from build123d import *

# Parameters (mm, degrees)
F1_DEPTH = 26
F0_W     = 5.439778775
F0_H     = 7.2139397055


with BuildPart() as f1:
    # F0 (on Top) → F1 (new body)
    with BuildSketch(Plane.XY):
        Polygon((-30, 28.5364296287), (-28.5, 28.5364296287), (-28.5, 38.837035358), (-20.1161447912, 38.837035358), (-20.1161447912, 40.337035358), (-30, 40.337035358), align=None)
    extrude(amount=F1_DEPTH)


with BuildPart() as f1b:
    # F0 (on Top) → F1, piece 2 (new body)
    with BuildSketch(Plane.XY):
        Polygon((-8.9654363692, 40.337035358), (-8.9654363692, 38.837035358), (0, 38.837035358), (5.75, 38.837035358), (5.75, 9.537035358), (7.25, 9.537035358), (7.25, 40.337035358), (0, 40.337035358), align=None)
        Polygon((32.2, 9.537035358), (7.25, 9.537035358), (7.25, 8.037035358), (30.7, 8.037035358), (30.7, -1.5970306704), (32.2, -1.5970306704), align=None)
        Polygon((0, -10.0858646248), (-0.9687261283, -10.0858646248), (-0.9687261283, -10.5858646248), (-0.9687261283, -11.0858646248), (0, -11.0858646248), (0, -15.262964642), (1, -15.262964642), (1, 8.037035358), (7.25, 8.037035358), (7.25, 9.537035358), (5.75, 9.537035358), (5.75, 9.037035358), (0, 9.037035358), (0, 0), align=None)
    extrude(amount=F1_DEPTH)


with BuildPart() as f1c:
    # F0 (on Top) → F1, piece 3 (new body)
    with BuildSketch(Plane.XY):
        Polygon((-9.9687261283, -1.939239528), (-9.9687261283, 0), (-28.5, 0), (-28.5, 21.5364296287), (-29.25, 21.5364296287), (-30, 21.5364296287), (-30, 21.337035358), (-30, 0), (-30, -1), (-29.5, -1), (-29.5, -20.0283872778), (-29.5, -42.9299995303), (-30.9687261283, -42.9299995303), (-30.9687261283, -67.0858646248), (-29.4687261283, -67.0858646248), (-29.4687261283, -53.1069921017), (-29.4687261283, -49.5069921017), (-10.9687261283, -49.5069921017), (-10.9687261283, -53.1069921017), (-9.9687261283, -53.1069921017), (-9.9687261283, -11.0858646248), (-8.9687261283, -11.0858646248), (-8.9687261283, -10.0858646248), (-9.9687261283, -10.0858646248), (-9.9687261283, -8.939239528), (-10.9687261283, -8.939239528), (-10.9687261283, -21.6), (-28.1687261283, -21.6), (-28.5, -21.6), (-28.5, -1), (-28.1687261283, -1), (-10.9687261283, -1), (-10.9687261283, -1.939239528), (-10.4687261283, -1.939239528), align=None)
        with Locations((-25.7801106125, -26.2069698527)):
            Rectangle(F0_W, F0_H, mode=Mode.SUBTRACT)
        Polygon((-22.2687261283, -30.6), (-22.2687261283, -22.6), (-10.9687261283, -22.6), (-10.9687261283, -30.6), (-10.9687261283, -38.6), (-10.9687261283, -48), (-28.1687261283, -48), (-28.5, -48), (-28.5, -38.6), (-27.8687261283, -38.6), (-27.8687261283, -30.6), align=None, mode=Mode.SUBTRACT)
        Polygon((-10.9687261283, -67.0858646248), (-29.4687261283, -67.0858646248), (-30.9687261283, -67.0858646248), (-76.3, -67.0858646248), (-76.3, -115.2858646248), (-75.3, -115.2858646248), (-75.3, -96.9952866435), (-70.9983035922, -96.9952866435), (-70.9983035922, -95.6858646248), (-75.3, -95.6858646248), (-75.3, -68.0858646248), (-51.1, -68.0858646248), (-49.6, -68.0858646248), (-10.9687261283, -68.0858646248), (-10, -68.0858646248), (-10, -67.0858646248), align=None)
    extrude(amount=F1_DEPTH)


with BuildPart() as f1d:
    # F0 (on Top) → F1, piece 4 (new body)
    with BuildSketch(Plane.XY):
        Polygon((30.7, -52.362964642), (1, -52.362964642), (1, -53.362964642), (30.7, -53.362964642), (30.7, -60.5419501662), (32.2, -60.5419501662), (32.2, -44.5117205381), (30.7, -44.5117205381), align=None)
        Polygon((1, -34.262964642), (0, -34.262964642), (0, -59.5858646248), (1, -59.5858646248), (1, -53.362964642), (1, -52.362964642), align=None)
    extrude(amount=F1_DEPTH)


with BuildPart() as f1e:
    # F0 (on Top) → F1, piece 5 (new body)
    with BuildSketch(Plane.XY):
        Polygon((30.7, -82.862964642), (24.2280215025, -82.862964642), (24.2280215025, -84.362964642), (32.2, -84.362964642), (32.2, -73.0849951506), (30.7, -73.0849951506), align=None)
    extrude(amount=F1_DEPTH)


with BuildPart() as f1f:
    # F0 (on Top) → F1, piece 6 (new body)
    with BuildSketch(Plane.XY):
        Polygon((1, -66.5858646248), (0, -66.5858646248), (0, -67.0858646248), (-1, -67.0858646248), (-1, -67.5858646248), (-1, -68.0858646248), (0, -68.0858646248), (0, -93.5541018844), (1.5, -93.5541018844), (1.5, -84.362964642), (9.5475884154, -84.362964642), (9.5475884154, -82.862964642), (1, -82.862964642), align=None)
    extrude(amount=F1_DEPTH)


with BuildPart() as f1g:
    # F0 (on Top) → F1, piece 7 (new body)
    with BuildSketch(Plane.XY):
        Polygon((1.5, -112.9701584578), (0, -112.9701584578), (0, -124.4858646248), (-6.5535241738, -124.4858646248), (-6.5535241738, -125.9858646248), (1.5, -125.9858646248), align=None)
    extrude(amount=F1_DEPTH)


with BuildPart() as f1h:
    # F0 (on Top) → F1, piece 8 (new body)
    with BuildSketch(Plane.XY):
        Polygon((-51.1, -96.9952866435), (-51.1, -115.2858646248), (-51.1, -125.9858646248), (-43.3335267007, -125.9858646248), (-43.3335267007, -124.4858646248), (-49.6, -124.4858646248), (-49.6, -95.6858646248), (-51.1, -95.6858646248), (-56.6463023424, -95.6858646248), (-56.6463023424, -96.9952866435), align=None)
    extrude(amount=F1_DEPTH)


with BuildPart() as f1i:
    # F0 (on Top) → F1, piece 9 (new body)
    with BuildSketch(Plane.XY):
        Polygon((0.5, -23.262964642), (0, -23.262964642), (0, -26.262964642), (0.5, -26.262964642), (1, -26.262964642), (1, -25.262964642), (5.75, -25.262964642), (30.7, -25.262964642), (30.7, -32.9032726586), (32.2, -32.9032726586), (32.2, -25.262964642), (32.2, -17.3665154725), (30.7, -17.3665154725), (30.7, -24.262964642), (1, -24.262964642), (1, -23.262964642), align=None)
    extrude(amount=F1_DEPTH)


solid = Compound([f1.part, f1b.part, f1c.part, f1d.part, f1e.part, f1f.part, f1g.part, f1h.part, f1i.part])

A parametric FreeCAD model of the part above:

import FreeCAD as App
import Part
import Sketcher
Q = App.Units.Quantity

doc = App.newDocument("Part")
body = doc.addObject("PartDesign::Body", "Body")

sketch1 = body.newObject("Sketcher::SketchObject", "Sketch")
sketch1.AttachmentSupport = (doc.getObject("XY_Plane"), [""])
sketch1.MapMode = "FlatFace"
sketch1.addGeometry(Part.LineSegment(App.Vector(-30, 28.5, 0), App.Vector(-28.5, 28.5, 0)), False)
sketch1.addGeometry(Part.LineSegment(App.Vector(-28.5, 28.5, 0), App.Vector(-28.5, 38.8, 0)), False)
sketch1.addGeometry(Part.LineSegment(App.Vector(-28.5, 38.8, 0), App.Vector(-20.1, 38.8, 0)), False)
sketch1.addGeometry(Part.LineSegment(App.Vector(-20.1, 38.8, 0), App.Vector(-20.1, 40.3, 0)), False)
sketch1.addGeometry(Part.LineSegment(App.Vector(-20.1, 40.3, 0), App.Vector(-30, 40.3, 0)), False)
sketch1.addGeometry(Part.LineSegment(App.Vector(-30, 40.3, 0), App.Vector(-30, 28.5, 0)), False)
sketch1.addConstraint(Sketcher.Constraint("Coincident", 0, 2, 1, 1))
sketch1.addConstraint(Sketcher.Constraint("Coincident", 1, 2, 2, 1))
sketch1.addConstraint(Sketcher.Constraint("Coincident", 2, 2, 3, 1))
sketch1.addConstraint(Sketcher.Constraint("Coincident", 3, 2, 4, 1))
sketch1.addConstraint(Sketcher.Constraint("Coincident", 4, 2, 5, 1))
sketch1.addConstraint(Sketcher.Constraint("Coincident", 5, 2, 0, 1))
sketch1.addConstraint(Sketcher.Constraint("Horizontal", 0))
sketch1.addConstraint(Sketcher.Constraint("Vertical", 1))
sketch1.addConstraint(Sketcher.Constraint("Horizontal", 2))
sketch1.addConstraint(Sketcher.Constraint("Vertical", 3))
sketch1.addConstraint(Sketcher.Constraint("Horizontal", 4))
sketch1.addConstraint(Sketcher.Constraint("Vertical", 5))
sketch1.addConstraint(Sketcher.Constraint("Equal", 0, 3))
sketch1.addConstraint(Sketcher.Constraint("DistanceX", 0, 1, 0, 2, Q("1.5 mm")))
sketch1.addConstraint(Sketcher.Constraint("DistanceX", 4, 2, -1, 1, Q("30 mm")))
sketch1.addConstraint(Sketcher.Constraint("DistanceX", 2, 1, 2, 2, Q("8.383855 mm")))
sketch1.addConstraint(Sketcher.Constraint("DistanceY", 1, 1, 1, 2, Q("10.300606 mm")))
sketch1.addConstraint(Sketcher.Constraint("DistanceY", -1, 1, 0, 2, Q("28.53643 mm")))
pad1 = body.newObject("PartDesign::Pad", "Pad")
pad1.Profile = sketch1
pad1.Length = 26
body2 = doc.addObject("PartDesign::Body", "Body001")

sketch2 = body2.newObject("Sketcher::SketchObject", "Sketch001")
sketch2.AttachmentSupport = (doc.getObject("XY_Plane001"), [""])
sketch2.MapMode = "FlatFace"
sketch2.addGeometry(Part.LineSegment(App.Vector(-9, 40.3, 0), App.Vector(-9, 38.8, 0)), False)
sketch2.addGeometry(Part.LineSegment(App.Vector(-9, 38.8, 0), App.Vector(5.8, 38.8, 0)), False)
sketch2.addGeometry(Part.LineSegment(App.Vector(5.8, 38.8, 0), App.Vector(5.8, 9, 0)), False)
sketch2.addGeometry(Part.LineSegment(App.Vector(5.8, 9, 0), App.Vector(0, 9, 0)), False)
sketch2.addGeometry(Part.LineSegment(App.Vector(0, 9, 0), App.Vector(0, -10.1, 0)), False)
sketch2.addGeometry(Part.LineSegment(App.Vector(0, -10.1, 0), App.Vector(-1, -10.1, 0)), False)
sketch2.addGeometry(Part.LineSegment(App.Vector(-1, -10.1, 0), App.Vector(-1, -11.1, 0)), False)
sketch2.addGeometry(Part.LineSegment(App.Vector(-1, -11.1, 0), App.Vector(0, -11.1, 0)), False)
sketch2.addGeometry(Part.LineSegment(App.Vector(0, -11.1, 0), App.Vector(0, -15.3, 0)), False)
sketch2.addGeometry(Part.LineSegment(App.Vector(0, -15.3, 0), App.Vector(1, -15.3, 0)), False)
sketch2.addGeometry(Part.LineSegment(App.Vector(1, -15.3, 0), App.Vector(1, 8, 0)), False)
sketch2.addGeometry(Part.LineSegment(App.Vector(1, 8, 0), App.Vector(30.7, 8, 0)), False)
sketch2.addGeometry(Part.LineSegment(App.Vector(30.7, 8, 0), App.Vector(30.7, -1.6, 0)), False)
sketch2.addGeometry(Part.LineSegment(App.Vector(30.7, -1.6, 0), App.Vector(32.2, -1.6, 0)), False)
sketch2.addGeometry(Part.LineSegment(App.Vector(32.2, -1.6, 0), App.Vector(32.2, 9.5, 0)), False)
sketch2.addGeometry(Part.LineSegment(App.Vector(32.2, 9.5, 0), App.Vector(7.2, 9.5, 0)), False)
sketch2.addGeometry(Part.LineSegment(App.Vector(7.2, 9.5, 0), App.Vector(7.2, 40.3, 0)), False)
sketch2.addGeometry(Part.LineSegment(App.Vector(7.2, 40.3, 0), App.Vector(-9, 40.3, 0)), False)
sketch2.addConstraint(Sketcher.Constraint("Coincident", 0, 2, 1, 1))
sketch2.addConstraint(Sketcher.Constraint("Coincident", 1, 2, 2, 1))
sketch2.addConstraint(Sketcher.Constraint("Coincident", 2, 2, 3, 1))
sketch2.addConstraint(Sketcher.Constraint("Coincident", 3, 2, 4, 1))
sketch2.addConstraint(Sketcher.Constraint("Coincident", 4, 2, 5, 1))
sketch2.addConstraint(Sketcher.Constraint("Coincident", 5, 2, 6, 1))
sketch2.addConstraint(Sketcher.Constraint("Coincident", 6, 2, 7, 1))
sketch2.addConstraint(Sketcher.Constraint("Coincident", 7, 2, 8, 1))
sketch2.addConstraint(Sketcher.Constraint("Coincident", 8, 2, 9, 1))
sketch2.addConstraint(Sketcher.Constraint("Coincident", 9, 2, 10, 1))
sketch2.addConstraint(Sketcher.Constraint("Coincident", 10, 2, 11, 1))
sketch2.addConstraint(Sketcher.Constraint("Coincident", 11, 2, 12, 1))
sketch2.addConstraint(Sketcher.Constraint("Coincident", 12, 2, 13, 1))
sketch2.addConstraint(Sketcher.Constraint("Coincident", 13, 2, 14, 1))
sketch2.addConstraint(Sketcher.Constraint("Coincident", 14, 2, 15, 1))
sketch2.addConstraint(Sketcher.Constraint("Coincident", 15, 2, 16, 1))
sketch2.addConstraint(Sketcher.Constraint("Coincident", 16, 2, 17, 1))
sketch2.addConstraint(Sketcher.Constraint("Coincident", 17, 2, 0, 1))
sketch2.addConstraint(Sketcher.Constraint("Vertical", 0))
sketch2.addConstraint(Sketcher.Constraint("Horizontal", 1))
sketch2.addConstraint(Sketcher.Constraint("Vertical", 2))
sketch2.addConstraint(Sketcher.Constraint("Horizontal", 3))
sketch2.addConstraint(Sketcher.Constraint("Vertical", 4))
sketch2.addConstraint(Sketcher.Constraint("Horizontal", 5))
sketch2.addConstraint(Sketcher.Constraint("Vertical", 6))
sketch2.addConstraint(Sketcher.Constraint("Horizontal", 7))
sketch2.addConstraint(Sketcher.Constraint("Vertical", 8))
sketch2.addConstraint(Sketcher.Constraint("Horizontal", 9))
sketch2.addConstraint(Sketcher.Constraint("Vertical", 10))
sketch2.addConstraint(Sketcher.Constraint("Horizontal", 11))
sketch2.addConstraint(Sketcher.Constraint("Vertical", 12))
sketch2.addConstraint(Sketcher.Constraint("Horizontal", 13))
sketch2.addConstraint(Sketcher.Constraint("Vertical", 14))
sketch2.addConstraint(Sketcher.Constraint("Horizontal", 15))
sketch2.addConstraint(Sketcher.Constraint("Vertical", 16))
sketch2.addConstraint(Sketcher.Constraint("Horizontal", 17))
sketch2.addConstraint(Sketcher.Constraint("PointOnObject", 3, 2, -2))
sketch2.addConstraint(Sketcher.Constraint("PointOnObject", 7, 2, -2))
sketch2.addConstraint(Sketcher.Constraint("Equal", 13, 0))
sketch2.addConstraint(Sketcher.Constraint("Equal", 9, 6))
sketch2.addConstraint(Sketcher.Constraint("DistanceX", 9, 1, 9, 2, Q("1 mm")))
sketch2.addConstraint(Sketcher.Constraint("DistanceX", 11, 1, 11, 2, Q("29.7 mm")))
sketch2.addConstraint(Sketcher.Constraint("DistanceX", 13, 1, 13, 2, Q("1.5 mm")))
sketch2.addConstraint(Sketcher.Constraint("DistanceY", 2, 2, 2, 1, Q("29.8 mm")))
sketch2.addConstraint(Sketcher.Constraint("DistanceY", 10, 1, 10, 2, Q("23.3 mm")))
sketch2.addConstraint(Sketcher.Constraint("DistanceY", 16, 1, 16, 2, Q("30.8 mm")))
sketch2.addConstraint(Sketcher.Constraint("DistanceY", 10, 2, 3, 2, Q("1 mm")))
sketch2.addConstraint(Sketcher.Constraint("DistanceX", 3, 2, 3, 1, Q("5.75 mm")))
sketch2.addConstraint(Sketcher.Constraint("DistanceX", 15, 2, 15, 1, Q("24.95 mm")))
sketch2.addConstraint(Sketcher.Constraint("DistanceY", 4, 2, 4, 1, Q("19.1229 mm")))
sketch2.addConstraint(Sketcher.Constraint("DistanceX", 1, 1, 1, 2, Q("14.715436 mm")))
sketch2.addConstraint(Sketcher.Constraint("DistanceX", 5, 2, 5, 1, Q("0.968726 mm")))
sketch2.addConstraint(Sketcher.Constraint("DistanceY", 12, 2, 12, 1, Q("9.634066 mm")))
sketch2.addConstraint(Sketcher.Constraint("DistanceY", 12, 2, -1, 1, Q("1.597031 mm")))
pad2 = body2.newObject("PartDesign::Pad", "Pad001")
pad2.Profile = sketch2
pad2.Length = 26
body3 = doc.addObject("PartDesign::Body", "Body002")

sketch3 = body3.newObject("Sketcher::SketchObject", "Sketch002")
sketch3.AttachmentSupport = (doc.getObject("XY_Plane002"), [""])
sketch3.MapMode = "FlatFace"
sketch3.addGeometry(Part.LineSegment(App.Vector(-10, -1.9, 0), App.Vector(-10, 0, 0)), False)
sketch3.addGeometry(Part.LineSegment(App.Vector(-10, 0, 0), App.Vector(-28.5, 0, 0)), False)
sketch3.addGeometry(Part.LineSegment(App.Vector(-28.5, 0, 0), App.Vector(-28.5, 21.5, 0)), False)
sketch3.addGeometry(Part.LineSegment(App.Vector(-28.5, 21.5, 0), App.Vector(-30, 21.5, 0)), False)
sketch3.addGeometry(Part.LineSegment(App.Vector(-30, 21.5, 0), App.Vector(-30, -1, 0)), False)
sketch3.addGeometry(Part.LineSegment(App.Vector(-30, -1, 0), App.Vector(-29.5, -1, 0)), False)
sketch3.addGeometry(Part.LineSegment(App.Vector(-29.5, -1, 0), App.Vector(-29.5, -42.9, 0)), False)
sketch3.addGeometry(Part.LineSegment(App.Vector(-29.5, -42.9, 0), App.Vector(-31, -42.9, 0)), False)
sketch3.addGeometry(Part.LineSegment(App.Vector(-31, -42.9, 0), App.Vector(-31, -67.1, 0)), False)
sketch3.addGeometry(Part.LineSegment(App.Vector(-31, -67.1, 0), App.Vector(-76.3, -67.1, 0)), False)
sketch3.addGeometry(Part.LineSegment(App.Vector(-76.3, -67.1, 0), App.Vector(-76.3, -115.3, 0)), False)
sketch3.addGeometry(Part.LineSegment(App.Vector(-76.3, -115.3, 0), App.Vector(-75.3, -115.3, 0)), False)
sketch3.addGeometry(Part.LineSegment(App.Vector(-75.3, -115.3, 0), App.Vector(-75.3, -97, 0)), False)
sketch3.addGeometry(Part.LineSegment(App.Vector(-75.3, -97, 0), App.Vector(-71, -97, 0)), False)
sketch3.addGeometry(Part.LineSegment(App.Vector(-71, -97, 0), App.Vector(-71, -95.7, 0)), False)
sketch3.addGeometry(Part.LineSegment(App.Vector(-71, -95.7, 0), App.Vector(-75.3, -95.7, 0)), False)
sketch3.addGeometry(Part.LineSegment(App.Vector(-75.3, -95.7, 0), App.Vector(-75.3, -68.1, 0)), False)
sketch3.addGeometry(Part.LineSegment(App.Vector(-75.3, -68.1, 0), App.Vector(-10, -68.1, 0)), False)
sketch3.addGeometry(Part.LineSegment(App.Vector(-10, -68.1, 0), App.Vector(-10, -67.1, 0)), False)
sketch3.addGeometry(Part.LineSegment(App.Vector(-10, -67.1, 0), App.Vector(-29.5, -67.1, 0)), False)
sketch3.addGeometry(Part.LineSegment(App.Vector(-29.5, -67.1, 0), App.Vector(-29.5, -49.5, 0)), False)
sketch3.addGeometry(Part.LineSegment(App.Vector(-29.5, -49.5, 0), App.Vector(-11, -49.5, 0)), False)
sketch3.addGeometry(Part.LineSegment(App.Vector(-11, -49.5, 0), App.Vector(-11, -53.1, 0)), False)
sketch3.addGeometry(Part.LineSegment(App.Vector(-11, -53.1, 0), App.Vector(-10, -53.1, 0)), False)
sketch3.addGeometry(Part.LineSegment(App.Vector(-10, -53.1, 0), App.Vector(-10, -11.1, 0)), False)
sketch3.addGeometry(Part.LineSegment(App.Vector(-10, -11.1, 0), App.Vector(-9, -11.1, 0)), False)
sketch3.addGeometry(Part.LineSegment(App.Vector(-9, -11.1, 0), App.Vector(-9, -10.1, 0)), False)
sketch3.addGeometry(Part.LineSegment(App.Vector(-9, -10.1, 0), App.Vector(-10, -10.1, 0)), False)
sketch3.addGeometry(Part.LineSegment(App.Vector(-10, -10.1, 0), App.Vector(-10, -8.9, 0)), False)
sketch3.addGeometry(Part.LineSegment(App.Vector(-10, -8.9, 0), App.Vector(-11, -8.9, 0)), False)
sketch3.addGeometry(Part.LineSegment(App.Vector(-11, -8.9, 0), App.Vector(-11, -21.6, 0)), False)
sketch3.addGeometry(Part.LineSegment(App.Vector(-11, -21.6, 0), App.Vector(-28.5, -21.6, 0)), False)
sketch3.addGeometry(Part.LineSegment(App.Vector(-28.5, -21.6, 0), App.Vector(-28.5, -1, 0)), False)
sketch3.addGeometry(Part.LineSegment(App.Vector(-28.5, -1, 0), App.Vector(-11, -1, 0)), False)
sketch3.addGeometry(Part.LineSegment(App.Vector(-11, -1, 0), App.Vector(-11, -1.9, 0)), False)
sketch3.addGeometry(Part.LineSegment(App.Vector(-11, -1.9, 0), App.Vector(-10, -1.9, 0)), False)
sketch3.addGeometry(Part.LineSegment(App.Vector(-27.9, -30.6, 0), App.Vector(-22.3, -30.6, 0)), False)
sketch3.addGeometry(Part.LineSegment(App.Vector(-22.3, -30.6, 0), App.Vector(-22.3, -22.6, 0)), False)
sketch3.addGeometry(Part.LineSegment(App.Vector(-22.3, -22.6, 0), App.Vector(-11, -22.6, 0)), False)
sketch3.addGeometry(Part.LineSegment(App.Vector(-11, -22.6, 0), App.Vector(-11, -48, 0)), False)
sketch3.addGeometry(Part.LineSegment(App.Vector(-11, -48, 0), App.Vector(-28.5, -48, 0)), False)
sketch3.addGeometry(Part.LineSegment(App.Vector(-28.5, -48, 0), App.Vector(-28.5, -38.6, 0)), False)
sketch3.addGeometry(Part.LineSegment(App.Vector(-28.5, -38.6, 0), App.Vector(-27.9, -38.6, 0)), False)
sketch3.addGeometry(Part.LineSegment(App.Vector(-27.9, -38.6, 0), App.Vector(-27.9, -30.6, 0)), False)
sketch3.addGeometry(Part.LineSegment(App.Vector(-23.1, -29.8, 0), App.Vector(-28.5, -29.8, 0)), False)
sketch3.addGeometry(Part.LineSegment(App.Vector(-28.5, -29.8, 0), App.Vector(-28.5, -22.6, 0)), False)
sketch3.addGeometry(Part.LineSegment(App.Vector(-28.5, -22.6, 0), App.Vector(-23.1, -22.6, 0)), False)
sketch3.addGeometry(Part.LineSegment(App.Vector(-23.1, -22.6, 0), App.Vector(-23.1, -29.8, 0)), False)
sketch3.addConstraint(Sketcher.Constraint("Coincident", 0, 2, 1, 1))
sketch3.addConstraint(Sketcher.Constraint("Coincident", 1, 2, 2, 1))
sketch3.addConstraint(Sketcher.Constraint("Coincident", 2, 2, 3, 1))
sketch3.addConstraint(Sketcher.Constraint("Coincident", 3, 2, 4, 1))
sketch3.addConstraint(Sketcher.Constraint("Coincident", 4, 2, 5, 1))
sketch3.addConstraint(Sketcher.Constraint("Coincident", 5, 2, 6, 1))
sketch3.addConstraint(Sketcher.Constraint("Coincident", 6, 2, 7, 1))
sketch3.addConstraint(Sketcher.Constraint("Coincident", 7, 2, 8, 1))
sketch3.addConstraint(Sketcher.Constraint("Coincident", 8, 2, 9, 1))
sketch3.addConstraint(Sketcher.Constraint("Coincident", 9, 2, 10, 1))
sketch3.addConstraint(Sketcher.Constraint("Coincident", 10, 2, 11, 1))
sketch3.addConstraint(Sketcher.Constraint("Coincident", 11, 2, 12, 1))
sketch3.addConstraint(Sketcher.Constraint("Coincident", 12, 2, 13, 1))
sketch3.addConstraint(Sketcher.Constraint("Coincident", 13, 2, 14, 1))
sketch3.addConstraint(Sketcher.Constraint("Coincident", 14, 2, 15, 1))
sketch3.addConstraint(Sketcher.Constraint("Coincident", 15, 2, 16, 1))
sketch3.addConstraint(Sketcher.Constraint("Coincident", 16, 2, 17, 1))
sketch3.addConstraint(Sketcher.Constraint("Coincident", 17, 2, 18, 1))
sketch3.addConstraint(Sketcher.Constraint("Coincident", 18, 2, 19, 1))
sketch3.addConstraint(Sketcher.Constraint("Coincident", 19, 2, 20, 1))
sketch3.addConstraint(Sketcher.Constraint("Coincident", 20, 2, 21, 1))
sketch3.addConstraint(Sketcher.Constraint("Coincident", 21, 2, 22, 1))
sketch3.addConstraint(Sketcher.Constraint("Coincident", 22, 2, 23, 1))
sketch3.addConstraint(Sketcher.Constraint("Coincident", 23, 2, 24, 1))
sketch3.addConstraint(Sketcher.Constraint("Coincident", 24, 2, 25, 1))
sketch3.addConstraint(Sketcher.Constraint("Coincident", 25, 2, 26, 1))
sketch3.addConstraint(Sketcher.Constraint("Coincident", 26, 2, 27, 1))
sketch3.addConstraint(Sketcher.Constraint("Coincident", 27, 2, 28, 1))
sketch3.addConstraint(Sketcher.Constraint("Coincident", 28, 2, 29, 1))
sketch3.addConstraint(Sketcher.Constraint("Coincident", 29, 2, 30, 1))
sketch3.addConstraint(Sketcher.Constraint("Coincident", 30, 2, 31, 1))
sketch3.addConstraint(Sketcher.Constraint("Coincident", 31, 2, 32, 1))
sketch3.addConstraint(Sketcher.Constraint("Coincident", 32, 2, 33, 1))
sketch3.addConstraint(Sketcher.Constraint("Coincident", 33, 2, 34, 1))
sketch3.addConstraint(Sketcher.Constraint("Coincident", 34, 2, 35, 1))
sketch3.addConstraint(Sketcher.Constraint("Coincident", 35, 2, 0, 1))
sketch3.addConstraint(Sketcher.Constraint("Coincident", 36, 2, 37, 1))
sketch3.addConstraint(Sketcher.Constraint("Coincident", 37, 2, 38, 1))
sketch3.addConstraint(Sketcher.Constraint("Coincident", 38, 2, 39, 1))
sketch3.addConstraint(Sketcher.Constraint("Coincident", 39, 2, 40, 1))
sketch3.addConstraint(Sketcher.Constraint("Coincident", 40, 2, 41, 1))
sketch3.addConstraint(Sketcher.Constraint("Coincident", 41, 2, 42, 1))
sketch3.addConstraint(Sketcher.Constraint("Coincident", 42, 2, 43, 1))
sketch3.addConstraint(Sketcher.Constraint("Coincident", 43, 2, 36, 1))
sketch3.addConstraint(Sketcher.Constraint("Coincident", 44, 2, 45, 1))
sketch3.addConstraint(Sketcher.Constraint("Coincident", 45, 2, 46, 1))
sketch3.addConstraint(Sketcher.Constraint("Coincident", 46, 2, 47, 1))
sketch3.addConstraint(Sketcher.Constraint("Coincident", 47, 2, 44, 1))
sketch3.addConstraint(Sketcher.Constraint("Vertical", 0))
sketch3.addConstraint(Sketcher.Constraint("Horizontal", 1))
sketch3.addConstraint(Sketcher.Constraint("Vertical", 2))
sketch3.addConstraint(Sketcher.Constraint("Horizontal", 3))
sketch3.addConstraint(Sketcher.Constraint("Vertical", 4))
sketch3.addConstraint(Sketcher.Constraint("Horizontal", 5))
sketch3.addConstraint(Sketcher.Constraint("Vertical", 6))
sketch3.addConstraint(Sketcher.Constraint("Horizontal", 7))
sketch3.addConstraint(Sketcher.Constraint("Vertical", 8))
sketch3.addConstraint(Sketcher.Constraint("Horizontal", 9))
sketch3.addConstraint(Sketcher.Constraint("Vertical", 10))
sketch3.addConstraint(Sketcher.Constraint("Horizontal", 11))
sketch3.addConstraint(Sketcher.Constraint("Vertical", 12))
sketch3.addConstraint(Sketcher.Constraint("Horizontal", 13))
sketch3.addConstraint(Sketcher.Constraint("Vertical", 14))
sketch3.addConstraint(Sketcher.Constraint("Horizontal", 15))
sketch3.addConstraint(Sketcher.Constraint("Vertical", 16))
sketch3.addConstraint(Sketcher.Constraint("Horizontal", 17))
sketch3.addConstraint(Sketcher.Constraint("Vertical", 18))
sketch3.addConstraint(Sketcher.Constraint("Horizontal", 19))
sketch3.addConstraint(Sketcher.Constraint("Vertical", 20))
sketch3.addConstraint(Sketcher.Constraint("Horizontal", 21))
sketch3.addConstraint(Sketcher.Constraint("Vertical", 22))
sketch3.addConstraint(Sketcher.Constraint("Horizontal", 23))
sketch3.addConstraint(Sketcher.Constraint("Vertical", 24))
sketch3.addConstraint(Sketcher.Constraint("Horizontal", 25))
sketch3.addConstraint(Sketcher.Constraint("Vertical", 26))
sketch3.addConstraint(Sketcher.Constraint("Horizontal", 27))
sketch3.addConstraint(Sketcher.Constraint("Vertical", 28))
sketch3.addConstraint(Sketcher.Constraint("Horizontal", 29))
sketch3.addConstraint(Sketcher.Constraint("Vertical", 30))
sketch3.addConstraint(Sketcher.Constraint("Horizontal", 31))
sketch3.addConstraint(Sketcher.Constraint("Vertical", 32))
sketch3.addConstraint(Sketcher.Constraint("Horizontal", 33))
sketch3.addConstraint(Sketcher.Constraint("Vertical", 34))
sketch3.addConstraint(Sketcher.Constraint("Horizontal", 35))
sketch3.addConstraint(Sketcher.Constraint("Horizontal", 36))
sketch3.addConstraint(Sketcher.Constraint("Vertical", 37))
sketch3.addConstraint(Sketcher.Constraint("Horizontal", 38))
sketch3.addConstraint(Sketcher.Constraint("Vertical", 39))
sketch3.addConstraint(Sketcher.Constraint("Horizontal", 40))
sketch3.addConstraint(Sketcher.Constraint("Vertical", 41))
sketch3.addConstraint(Sketcher.Constraint("Horizontal", 42))
sketch3.addConstraint(Sketcher.Constraint("Vertical", 43))
sketch3.addConstraint(Sketcher.Constraint("Horizontal", 44))
sketch3.addConstraint(Sketcher.Constraint("Vertical", 45))
sketch3.addConstraint(Sketcher.Constraint("Horizontal", 46))
sketch3.addConstraint(Sketcher.Constraint("Vertical", 47))
sketch3.addConstraint(Sketcher.Constraint("PointOnObject", 0, 2, -1))
sketch3.addConstraint(Sketcher.Constraint("Horizontal", 9, 2, 18, 2))
sketch3.addConstraint(Sketcher.Constraint("Horizontal", 5, 2, 32, 2))
sketch3.addConstraint(Sketcher.Constraint("Horizontal", 38, 2, 45, 2))
sketch3.addConstraint(Sketcher.Constraint("Vertical", 12, 2, 15, 2))
sketch3.addConstraint(Sketcher.Constraint("Vertical", 0, 2, 23, 2))
sketch3.addConstraint(Sketcher.Constraint("Vertical", 24, 2, 27, 2))
sketch3.addConstraint(Sketcher.Constraint("Vertical", 22, 2, 29, 2))
sketch3.addConstraint(Sketcher.Constraint("Vertical", 2, 2, 31, 2))
sketch3.addConstraint(Sketcher.Constraint("Vertical", 30, 2, 33, 2))
sketch3.addConstraint(Sketcher.Constraint("Vertical", 34, 2, 38, 2))
sketch3.addConstraint(Sketcher.Constraint("Vertical", 32, 2, 40, 2))
sketch3.addConstraint(Sketcher.Constraint("Vertical", 41, 2, 44, 2))
sketch3.addConstraint(Sketcher.Constraint("Equal", 11, 23))
sketch3.addConstraint(Sketcher.Constraint("Equal", 23, 25))
sketch3.addConstraint(Sketcher.Constraint("Equal", 35, 18))
sketch3.addConstraint(Sketcher.Constraint("Equal", 18, 26))
sketch3.addConstraint(Sketcher.Constraint("Equal", 37, 43))
sketch3.addConstraint(Sketcher.Constraint("DistanceX", 11, 1, 11, 2, Q("1 mm")))
sketch3.addConstraint(Sketcher.Constraint("DistanceY", 37, 1, 37, 2, Q("8 mm")))
sketch3.addConstraint(Sketcher.Constraint("DistanceX", 3, 2, 3, 1, Q("1.5 mm")))
sketch3.addConstraint(Sketcher.Constraint("DistanceX", 5, 1, 5, 2, Q("0.5 mm")))
sketch3.addConstraint(Sketcher.Constraint("DistanceX", 17, 1, 17, 2, Q("65.3 mm")))
sketch3.addConstraint(Sketcher.Constraint("DistanceX", 21, 1, 21, 2, Q("18.5 mm")))
sketch3.addConstraint(Sketcher.Constraint("DistanceX", 36, 1, 36, 2, Q("5.6 mm")))
sketch3.addConstraint(Sketcher.Constraint("DistanceX", 38, 1, 38, 2, Q("11.3 mm")))
sketch3.addConstraint(Sketcher.Constraint("DistanceY", 10, 2, 10, 1, Q("48.2 mm")))
sketch3.addConstraint(Sketcher.Constraint("DistanceY", 16, 1, 16, 2, Q("27.6 mm")))
sketch3.addConstraint(Sketcher.Constraint("DistanceY", 22, 2, 22, 1, Q("3.6 mm")))
sketch3.addConstraint(Sketcher.Constraint("DistanceY", 32, 1, 32, 2, Q("20.6 mm")))
sketch3.addConstraint(Sketcher.Constraint("DistanceY", 39, 2, 39, 1, Q("25.4 mm")))
sketch3.addConstraint(Sketcher.Constraint("DistanceX", 3, 2, -1, 1, Q("30 mm")))
sketch3.addConstraint(Sketcher.Constraint("DistanceY", 4, 2, -1, 1, Q("1 mm")))
sketch3.addConstraint(Sketcher.Constraint("DistanceX", 17, 2, -1, 1, Q("10 mm")))
sketch3.addConstraint(Sketcher.Constraint("DistanceY", 39, 2, -1, 1, Q("48 mm")))
sketch3.addConstraint(Sketcher.Constraint("DistanceX", 7, 2, 0, 2, Q("21 mm")))
sketch3.addConstraint(Sketcher.Constraint("DistanceY", 29, 2, 34, 2, Q("7 mm")))
sketch3.addConstraint(Sketcher.Constraint("DistanceY", 6, 2, 6, 1, Q("41.93 mm")))
sketch3.addConstraint(Sketcher.Constraint("DistanceX", 44, 2, 44, 1, Q("5.439779 mm")))
sketch3.addConstraint(Sketcher.Constraint("DistanceY", 0, 1, 0, 2, Q("1.93924 mm")))
sketch3.addConstraint(Sketcher.Constraint("DistanceY", 2, 1, 2, 2, Q("21.53643 mm")))
sketch3.addConstraint(Sketcher.Constraint("DistanceY", 45, 1, 45, 2, Q("7.21394 mm")))
sketch3.addConstraint(Sketcher.Constraint("DistanceX", 1, 2, 1, 1, Q("18.531274 mm")))
sketch3.addConstraint(Sketcher.Constraint("DistanceX", 13, 1, 13, 2, Q("4.301696 mm")))
sketch3.addConstraint(Sketcher.Constraint("DistanceY", 8, 2, 8, 1, Q("24.155865 mm")))
sketch3.addConstraint(Sketcher.Constraint("DistanceY", 12, 1, 12, 2, Q("18.290578 mm")))
sketch3.addConstraint(Sketcher.Constraint("DistanceY", 20, 1, 20, 2, Q("17.578873 mm")))
sketch3.addConstraint(Sketcher.Constraint("DistanceY", 24, 1, 24, 2, Q("42.021127 mm")))
pad3 = body3.newObject("PartDesign::Pad", "Pad002")
pad3.Profile = sketch3
pad3.Length = 26
body4 = doc.addObject("PartDesign::Body", "Body003")

sketch4 = body4.newObject("Sketcher::SketchObject", "Sketch003")
sketch4.AttachmentSupport = (doc.getObject("XY_Plane003"), [""])
sketch4.MapMode = "FlatFace"
sketch4.addGeometry(Part.LineSegment(App.Vector(30.7, -52.4, 0), App.Vector(1, -52.4, 0)), False)
sketch4.addGeometry(Part.LineSegment(App.Vector(1, -52.4, 0), App.Vector(1, -34.3, 0)), False)
sketch4.addGeometry(Part.LineSegment(App.Vector(1, -34.3, 0), App.Vector(0, -34.3, 0)), False)
sketch4.addGeometry(Part.LineSegment(App.Vector(0, -34.3, 0), App.Vector(0, -59.6, 0)), False)
sketch4.addGeometry(Part.LineSegment(App.Vector(0, -59.6, 0), App.Vector(1, -59.6, 0)), False)
sketch4.addGeometry(Part.LineSegment(App.Vector(1, -59.6, 0), App.Vector(1, -53.4, 0)), False)
sketch4.addGeometry(Part.LineSegment(App.Vector(1, -53.4, 0), App.Vector(30.7, -53.4, 0)), False)
sketch4.addGeometry(Part.LineSegment(App.Vector(30.7, -53.4, 0), App.Vector(30.7, -60.5, 0)), False)
sketch4.addGeometry(Part.LineSegment(App.Vector(30.7, -60.5, 0), App.Vector(32.2, -60.5, 0)), False)
sketch4.addGeometry(Part.LineSegment(App.Vector(32.2, -60.5, 0), App.Vector(32.2, -44.5, 0)), False)
sketch4.addGeometry(Part.LineSegment(App.Vector(32.2, -44.5, 0), App.Vector(30.7, -44.5, 0)), False)
sketch4.addGeometry(Part.LineSegment(App.Vector(30.7, -44.5, 0), App.Vector(30.7, -52.4, 0)), False)
sketch4.addConstraint(Sketcher.Constraint("Coincident", 0, 2, 1, 1))
sketch4.addConstraint(Sketcher.Constraint("Coincident", 1, 2, 2, 1))
sketch4.addConstraint(Sketcher.Constraint("Coincident", 2, 2, 3, 1))
sketch4.addConstraint(Sketcher.Constraint("Coincident", 3, 2, 4, 1))
sketch4.addConstraint(Sketcher.Constraint("Coincident", 4, 2, 5, 1))
sketch4.addConstraint(Sketcher.Constraint("Coincident", 5, 2, 6, 1))
sketch4.addConstraint(Sketcher.Constraint("Coincident", 6, 2, 7, 1))
sketch4.addConstraint(Sketcher.Constraint("Coincident", 7, 2, 8, 1))
sketch4.addConstraint(Sketcher.Constraint("Coincident", 8, 2, 9, 1))
sketch4.addConstraint(Sketcher.Constraint("Coincident", 9, 2, 10, 1))
sketch4.addConstraint(Sketcher.Constraint("Coincident", 10, 2, 11, 1))
sketch4.addConstraint(Sketcher.Constraint("Coincident", 11, 2, 0, 1))
sketch4.addConstraint(Sketcher.Constraint("Horizontal", 0))
sketch4.addConstraint(Sketcher.Constraint("Vertical", 1))
sketch4.addConstraint(Sketcher.Constraint("Horizontal", 2))
sketch4.addConstraint(Sketcher.Constraint("Vertical", 3))
sketch4.addConstraint(Sketcher.Constraint("Horizontal", 4))
sketch4.addConstraint(Sketcher.Constraint("Vertical", 5))
sketch4.addConstraint(Sketcher.Constraint("Horizontal", 6))
sketch4.addConstraint(Sketcher.Constraint("Vertical", 7))
sketch4.addConstraint(Sketcher.Constraint("Horizontal", 8))
sketch4.addConstraint(Sketcher.Constraint("Vertical", 9))
sketch4.addConstraint(Sketcher.Constraint("Horizontal", 10))
sketch4.addConstraint(Sketcher.Constraint("Vertical", 11))
sketch4.addConstraint(Sketcher.Constraint("PointOnObject", 2, 2, -2))
sketch4.addConstraint(Sketcher.Constraint("Vertical", 1, 2, 4, 2))
sketch4.addConstraint(Sketcher.Constraint("Vertical", 7, 2, 10, 2))
sketch4.addConstraint(Sketcher.Constraint("DistanceX", 2, 2, 2, 1, Q("1 mm")))
sketch4.addConstraint(Sketcher.Constraint("DistanceX", 0, 2, 0, 1, Q("29.7 mm")))
sketch4.addConstraint(Sketcher.Constraint("DistanceX", 8, 1, 8, 2, Q("1.5 mm")))
sketch4.addConstraint(Sketcher.Constraint("DistanceY", 1, 1, 1, 2, Q("18.1 mm")))
sketch4.addConstraint(Sketcher.Constraint("DistanceY", 5, 2, 0, 2, Q("1 mm")))
sketch4.addConstraint(Sketcher.Constraint("DistanceY", 3, 2, 3, 1, Q("25.3229 mm")))
sketch4.addConstraint(Sketcher.Constraint("DistanceY", 9, 1, 9, 2, Q("16.03023 mm")))
sketch4.addConstraint(Sketcher.Constraint("DistanceY", 7, 2, 7, 1, Q("7.178986 mm")))
sketch4.addConstraint(Sketcher.Constraint("DistanceY", 7, 2, -1, 1, Q("60.54195 mm")))
pad4 = body4.newObject("PartDesign::Pad", "Pad003")
pad4.Profile = sketch4
pad4.Length = 26
body5 = doc.addObject("PartDesign::Body", "Body004")

sketch5 = body5.newObject("Sketcher::SketchObject", "Sketch004")
sketch5.AttachmentSupport = (doc.getObject("XY_Plane004"), [""])
sketch5.MapMode = "FlatFace"
sketch5.addGeometry(Part.LineSegment(App.Vector(30.7, -82.9, 0), App.Vector(24.2, -82.9, 0)), False)
sketch5.addGeometry(Part.LineSegment(App.Vector(24.2, -82.9, 0), App.Vector(24.2, -84.4, 0)), False)
sketch5.addGeometry(Part.LineSegment(App.Vector(24.2, -84.4, 0), App.Vector(32.2, -84.4, 0)), False)
sketch5.addGeometry(Part.LineSegment(App.Vector(32.2, -84.4, 0), App.Vector(32.2, -73.1, 0)), False)
sketch5.addGeometry(Part.LineSegment(App.Vector(32.2, -73.1, 0), App.Vector(30.7, -73.1, 0)), False)
sketch5.addGeometry(Part.LineSegment(App.Vector(30.7, -73.1, 0), App.Vector(30.7, -82.9, 0)), False)
sketch5.addConstraint(Sketcher.Constraint("Coincident", 0, 2, 1, 1))
sketch5.addConstraint(Sketcher.Constraint("Coincident", 1, 2, 2, 1))
sketch5.addConstraint(Sketcher.Constraint("Coincident", 2, 2, 3, 1))
sketch5.addConstraint(Sketcher.Constraint("Coincident", 3, 2, 4, 1))
sketch5.addConstraint(Sketcher.Constraint("Coincident", 4, 2, 5, 1))
sketch5.addConstraint(Sketcher.Constraint("Coincident", 5, 2, 0, 1))
sketch5.addConstraint(Sketcher.Constraint("Horizontal", 0))
sketch5.addConstraint(Sketcher.Constraint("Vertical", 1))
sketch5.addConstraint(Sketcher.Constraint("Horizontal", 2))
sketch5.addConstraint(Sketcher.Constraint("Vertical", 3))
sketch5.addConstraint(Sketcher.Constraint("Horizontal", 4))
sketch5.addConstraint(Sketcher.Constraint("Vertical", 5))
sketch5.addConstraint(Sketcher.Constraint("Equal", 4, 1))
sketch5.addConstraint(Sketcher.Constraint("DistanceX", 4, 2, 4, 1, Q("1.5 mm")))
sketch5.addConstraint(Sketcher.Constraint("DistanceX", -1, 1, 2, 2, Q("32.2 mm")))
sketch5.addConstraint(Sketcher.Constraint("DistanceX", 0, 2, 0, 1, Q("6.471978 mm")))
sketch5.addConstraint(Sketcher.Constraint("DistanceY", 3, 1, 3, 2, Q("11.277969 mm")))
sketch5.addConstraint(Sketcher.Constraint("DistanceY", 0, 2, -1, 1, Q("82.862965 mm")))
pad5 = body5.newObject("PartDesign::Pad", "Pad004")
pad5.Profile = sketch5
pad5.Length = 26
body6 = doc.addObject("PartDesign::Body", "Body005")

sketch6 = body6.newObject("Sketcher::SketchObject", "Sketch005")
sketch6.AttachmentSupport = (doc.getObject("XY_Plane005"), [""])
sketch6.MapMode = "FlatFace"
sketch6.addGeometry(Part.LineSegment(App.Vector(1, -66.6, 0), App.Vector(0, -66.6, 0)), False)
sketch6.addGeometry(Part.LineSegment(App.Vector(0, -66.6, 0), App.Vector(0, -67.1, 0)), False)
sketch6.addGeometry(Part.LineSegment(App.Vector(0, -67.1, 0), App.Vector(-1, -67.1, 0)), False)
sketch6.addGeometry(Part.LineSegment(App.Vector(-1, -67.1, 0), App.Vector(-1, -68.1, 0)), False)
sketch6.addGeometry(Part.LineSegment(App.Vector(-1, -68.1, 0), App.Vector(0, -68.1, 0)), False)
sketch6.addGeometry(Part.LineSegment(App.Vector(0, -68.1, 0), App.Vector(0, -93.6, 0)), False)
sketch6.addGeometry(Part.LineSegment(App.Vector(0, -93.6, 0), App.Vector(1.5, -93.6, 0)), False)
sketch6.addGeometry(Part.LineSegment(App.Vector(1.5, -93.6, 0), App.Vector(1.5, -84.4, 0)), False)
sketch6.addGeometry(Part.LineSegment(App.Vector(1.5, -84.4, 0), App.Vector(9.5, -84.4, 0)), False)
sketch6.addGeometry(Part.LineSegment(App.Vector(9.5, -84.4, 0), App.Vector(9.5, -82.9, 0)), False)
sketch6.addGeometry(Part.LineSegment(App.Vector(9.5, -82.9, 0), App.Vector(1, -82.9, 0)), False)
sketch6.addGeometry(Part.LineSegment(App.Vector(1, -82.9, 0), App.Vector(1, -66.6, 0)), False)
sketch6.addConstraint(Sketcher.Constraint("Coincident", 0, 2, 1, 1))
sketch6.addConstraint(Sketcher.Constraint("Coincident", 1, 2, 2, 1))
sketch6.addConstraint(Sketcher.Constraint("Coincident", 2, 2, 3, 1))
sketch6.addConstraint(Sketcher.Constraint("Coincident", 3, 2, 4, 1))
sketch6.addConstraint(Sketcher.Constraint("Coincident", 4, 2, 5, 1))
sketch6.addConstraint(Sketcher.Constraint("Coincident", 5, 2, 6, 1))
sketch6.addConstraint(Sketcher.Constraint("Coincident", 6, 2, 7, 1))
sketch6.addConstraint(Sketcher.Constraint("Coincident", 7, 2, 8, 1))
sketch6.addConstraint(Sketcher.Constraint("Coincident", 8, 2, 9, 1))
sketch6.addConstraint(Sketcher.Constraint("Coincident", 9, 2, 10, 1))
sketch6.addConstraint(Sketcher.Constraint("Coincident", 10, 2, 11, 1))
sketch6.addConstraint(Sketcher.Constraint("Coincident", 11, 2, 0, 1))
sketch6.addConstraint(Sketcher.Constraint("Horizontal", 0))
sketch6.addConstraint(Sketcher.Constraint("Vertical", 1))
sketch6.addConstraint(Sketcher.Constraint("Horizontal", 2))
sketch6.addConstraint(Sketcher.Constraint("Vertical", 3))
sketch6.addConstraint(Sketcher.Constraint("Horizontal", 4))
sketch6.addConstraint(Sketcher.Constraint("Vertical", 5))
sketch6.addConstraint(Sketcher.Constraint("Horizontal", 6))
sketch6.addConstraint(Sketcher.Constraint("Vertical", 7))
sketch6.addConstraint(Sketcher.Constraint("Horizontal", 8))
sketch6.addConstraint(Sketcher.Constraint("Vertical", 9))
sketch6.addConstraint(Sketcher.Constraint("Horizontal", 10))
sketch6.addConstraint(Sketcher.Constraint("Vertical", 11))
sketch6.addConstraint(Sketcher.Constraint("PointOnObject", 0, 2, -2))
sketch6.addConstraint(Sketcher.Constraint("PointOnObject", 4, 2, -2))
sketch6.addConstraint(Sketcher.Constraint("Equal", 0, 2))
sketch6.addConstraint(Sketcher.Constraint("Equal", 4, 3))
sketch6.addConstraint(Sketcher.Constraint("Equal", 6, 9))
sketch6.addConstraint(Sketcher.Constraint("DistanceX", 0, 2, 0, 1, Q("1 mm")))
sketch6.addConstraint(Sketcher.Constraint("DistanceX", 6, 1, 6, 2, Q("1.5 mm")))
sketch6.addConstraint(Sketcher.Constraint("DistanceY", 1, 2, 1, 1, Q("0.5 mm")))
sketch6.addConstraint(Sketcher.Constraint("DistanceY", 11, 1, 11, 2, Q("16.2771 mm")))
sketch6.addConstraint(Sketcher.Constraint("DistanceX", 8, 1, 8, 2, Q("8.047588 mm")))
sketch6.addConstraint(Sketcher.Constraint("DistanceY", 5, 2, -1, 1, Q("93.554102 mm")))
sketch6.addConstraint(Sketcher.Constraint("DistanceY", 5, 2, 5, 1, Q("25.468237 mm")))
pad6 = body6.newObject("PartDesign::Pad", "Pad005")
pad6.Profile = sketch6
pad6.Length = 26
body7 = doc.addObject("PartDesign::Body", "Body006")

sketch7 = body7.newObject("Sketcher::SketchObject", "Sketch006")
sketch7.AttachmentSupport = (doc.getObject("XY_Plane006"), [""])
sketch7.MapMode = "FlatFace"
sketch7.addGeometry(Part.LineSegment(App.Vector(1.5, -113, 0), App.Vector(0, -113, 0)), False)
sketch7.addGeometry(Part.LineSegment(App.Vector(0, -113, 0), App.Vector(0, -124.5, 0)), False)
sketch7.addGeometry(Part.LineSegment(App.Vector(0, -124.5, 0), App.Vector(-6.6, -124.5, 0)), False)
sketch7.addGeometry(Part.LineSegment(App.Vector(-6.6, -124.5, 0), App.Vector(-6.6, -126, 0)), False)
sketch7.addGeometry(Part.LineSegment(App.Vector(-6.6, -126, 0), App.Vector(1.5, -126, 0)), False)
sketch7.addGeometry(Part.LineSegment(App.Vector(1.5, -126, 0), App.Vector(1.5, -113, 0)), False)
sketch7.addConstraint(Sketcher.Constraint("Coincident", 0, 2, 1, 1))
sketch7.addConstraint(Sketcher.Constraint("Coincident", 1, 2, 2, 1))
sketch7.addConstraint(Sketcher.Constraint("Coincident", 2, 2, 3, 1))
sketch7.addConstraint(Sketcher.Constraint("Coincident", 3, 2, 4, 1))
sketch7.addConstraint(Sketcher.Constraint("Coincident", 4, 2, 5, 1))
sketch7.addConstraint(Sketcher.Constraint("Coincident", 5, 2, 0, 1))
sketch7.addConstraint(Sketcher.Constraint("Horizontal", 0))
sketch7.addConstraint(Sketcher.Constraint("Vertical", 1))
sketch7.addConstraint(Sketcher.Constraint("Horizontal", 2))
sketch7.addConstraint(Sketcher.Constraint("Vertical", 3))
sketch7.addConstraint(Sketcher.Constraint("Horizontal", 4))
sketch7.addConstraint(Sketcher.Constraint("Vertical", 5))
sketch7.addConstraint(Sketcher.Constraint("PointOnObject", 0, 2, -2))
sketch7.addConstraint(Sketcher.Constraint("Equal", 0, 3))
sketch7.addConstraint(Sketcher.Constraint("DistanceX", 0, 2, 0, 1, Q("1.5 mm")))
sketch7.addConstraint(Sketcher.Constraint("DistanceX", 2, 2, 2, 1, Q("6.553524 mm")))
sketch7.addConstraint(Sketcher.Constraint("DistanceY", 1, 2, 1, 1, Q("11.515706 mm")))
sketch7.addConstraint(Sketcher.Constraint("DistanceY", 0, 2, -1, 1, Q("112.970158 mm")))
pad7 = body7.newObject("PartDesign::Pad", "Pad006")
pad7.Profile = sketch7
pad7.Length = 26
body8 = doc.addObject("PartDesign::Body", "Body007")

sketch8 = body8.newObject("Sketcher::SketchObject", "Sketch007")
sketch8.AttachmentSupport = (doc.getObject("XY_Plane007"), [""])
sketch8.MapMode = "FlatFace"
sketch8.addGeometry(Part.LineSegment(App.Vector(-51.1, -97, 0), App.Vector(-51.1, -126, 0)), False)
sketch8.addGeometry(Part.LineSegment(App.Vector(-51.1, -126, 0), App.Vector(-43.3, -126, 0)), False)
sketch8.addGeometry(Part.LineSegment(App.Vector(-43.3, -126, 0), App.Vector(-43.3, -124.5, 0)), False)
sketch8.addGeometry(Part.LineSegment(App.Vector(-43.3, -124.5, 0), App.Vector(-49.6, -124.5, 0)), False)
sketch8.addGeometry(Part.LineSegment(App.Vector(-49.6, -124.5, 0), App.Vector(-49.6, -95.7, 0)), False)
sketch8.addGeometry(Part.LineSegment(App.Vector(-49.6, -95.7, 0), App.Vector(-56.6, -95.7, 0)), False)
sketch8.addGeometry(Part.LineSegment(App.Vector(-56.6, -95.7, 0), App.Vector(-56.6, -97, 0)), False)
sketch8.addGeometry(Part.LineSegment(App.Vector(-56.6, -97, 0), App.Vector(-51.1, -97, 0)), False)
sketch8.addConstraint(Sketcher.Constraint("Coincident", 0, 2, 1, 1))
sketch8.addConstraint(Sketcher.Constraint("Coincident", 1, 2, 2, 1))
sketch8.addConstraint(Sketcher.Constraint("Coincident", 2, 2, 3, 1))
sketch8.addConstraint(Sketcher.Constraint("Coincident", 3, 2, 4, 1))
sketch8.addConstraint(Sketcher.Constraint("Coincident", 4, 2, 5, 1))
sketch8.addConstraint(Sketcher.Constraint("Coincident", 5, 2, 6, 1))
sketch8.addConstraint(Sketcher.Constraint("Coincident", 6, 2, 7, 1))
sketch8.addConstraint(Sketcher.Constraint("Coincident", 7, 2, 0, 1))
sketch8.addConstraint(Sketcher.Constraint("Vertical", 0))
sketch8.addConstraint(Sketcher.Constraint("Horizontal", 1))
sketch8.addConstraint(Sketcher.Constraint("Vertical", 2))
sketch8.addConstraint(Sketcher.Constraint("Horizontal", 3))
sketch8.addConstraint(Sketcher.Constraint("Vertical", 4))
sketch8.addConstraint(Sketcher.Constraint("Horizontal", 5))
sketch8.addConstraint(Sketcher.Constraint("Vertical", 6))
sketch8.addConstraint(Sketcher.Constraint("Horizontal", 7))
sketch8.addConstraint(Sketcher.Constraint("DistanceY", 2, 1, 2, 2, Q("1.5 mm")))
sketch8.addConstraint(Sketcher.Constraint("DistanceY", 4, 1, 4, 2, Q("28.8 mm")))
sketch8.addConstraint(Sketcher.Constraint("DistanceX", 0, 2, -1, 1, Q("51.1 mm")))
sketch8.addConstraint(Sketcher.Constraint("DistanceX", 3, 2, -1, 1, Q("49.6 mm")))
sketch8.addConstraint(Sketcher.Constraint("DistanceX", 1, 1, 1, 2, Q("7.766473 mm")))
sketch8.addConstraint(Sketcher.Constraint("DistanceX", 5, 2, 5, 1, Q("7.046302 mm")))
sketch8.addConstraint(Sketcher.Constraint("DistanceY", 0, 2, 0, 1, Q("28.990578 mm")))
sketch8.addConstraint(Sketcher.Constraint("DistanceY", 0, 2, -1, 1, Q("125.985865 mm")))
pad8 = body8.newObject("PartDesign::Pad", "Pad007")
pad8.Profile = sketch8
pad8.Length = 26
body9 = doc.addObject("PartDesign::Body", "Body008")

sketch9 = body9.newObject("Sketcher::SketchObject", "Sketch008")
sketch9.AttachmentSupport = (doc.getObject("XY_Plane008"), [""])
sketch9.MapMode = "FlatFace"
sketch9.addGeometry(Part.LineSegment(App.Vector(0, -23.3, 0), App.Vector(0, -26.3, 0)), False)
sketch9.addGeometry(Part.LineSegment(App.Vector(0, -26.3, 0), App.Vector(1, -26.3, 0)), False)
sketch9.addGeometry(Part.LineSegment(App.Vector(1, -26.3, 0), App.Vector(1, -25.3, 0)), False)
sketch9.addGeometry(Part.LineSegment(App.Vector(1, -25.3, 0), App.Vector(30.7, -25.3, 0)), False)
sketch9.addGeometry(Part.LineSegment(App.Vector(30.7, -25.3, 0), App.Vector(30.7, -32.9, 0)), False)
sketch9.addGeometry(Part.LineSegment(App.Vector(30.7, -32.9, 0), App.Vector(32.2, -32.9, 0)), False)
sketch9.addGeometry(Part.LineSegment(App.Vector(32.2, -32.9, 0), App.Vector(32.2, -17.4, 0)), False)
sketch9.addGeometry(Part.LineSegment(App.Vector(32.2, -17.4, 0), App.Vector(30.7, -17.4, 0)), False)
sketch9.addGeometry(Part.LineSegment(App.Vector(30.7, -17.4, 0), App.Vector(30.7, -24.3, 0)), False)
sketch9.addGeometry(Part.LineSegment(App.Vector(30.7, -24.3, 0), App.Vector(1, -24.3, 0)), False)
sketch9.addGeometry(Part.LineSegment(App.Vector(1, -24.3, 0), App.Vector(1, -23.3, 0)), False)
sketch9.addGeometry(Part.LineSegment(App.Vector(1, -23.3, 0), App.Vector(0, -23.3, 0)), False)
sketch9.addConstraint(Sketcher.Constraint("Coincident", 0, 2, 1, 1))
sketch9.addConstraint(Sketcher.Constraint("Coincident", 1, 2, 2, 1))
sketch9.addConstraint(Sketcher.Constraint("Coincident", 2, 2, 3, 1))
sketch9.addConstraint(Sketcher.Constraint("Coincident", 3, 2, 4, 1))
sketch9.addConstraint(Sketcher.Constraint("Coincident", 4, 2, 5, 1))
sketch9.addConstraint(Sketcher.Constraint("Coincident", 5, 2, 6, 1))
sketch9.addConstraint(Sketcher.Constraint("Coincident", 6, 2, 7, 1))
sketch9.addConstraint(Sketcher.Constraint("Coincident", 7, 2, 8, 1))
sketch9.addConstraint(Sketcher.Constraint("Coincident", 8, 2, 9, 1))
sketch9.addConstraint(Sketcher.Constraint("Coincident", 9, 2, 10, 1))
sketch9.addConstraint(Sketcher.Constraint("Coincident", 10, 2, 11, 1))
sketch9.addConstraint(Sketcher.Constraint("Coincident", 11, 2, 0, 1))
sketch9.addConstraint(Sketcher.Constraint("Vertical", 0))
sketch9.addConstraint(Sketcher.Constraint("Horizontal", 1))
sketch9.addConstraint(Sketcher.Constraint("Vertical", 2))
sketch9.addConstraint(Sketcher.Constraint("Horizontal", 3))
sketch9.addConstraint(Sketcher.Constraint("Vertical", 4))
sketch9.addConstraint(Sketcher.Constraint("Horizontal", 5))
sketch9.addConstraint(Sketcher.Constraint("Vertical", 6))
sketch9.addConstraint(Sketcher.Constraint("Horizontal", 7))
sketch9.addConstraint(Sketcher.Constraint("Vertical", 8))
sketch9.addConstraint(Sketcher.Constraint("Horizontal", 9))
sketch9.addConstraint(Sketcher.Constraint("Vertical", 10))
sketch9.addConstraint(Sketcher.Constraint("Horizontal", 11))
sketch9.addConstraint(Sketcher.Constraint("PointOnObject", 0, 2, -2))
sketch9.addConstraint(Sketcher.Constraint("Vertical", 4, 2, 7, 2))
sketch9.addConstraint(Sketcher.Constraint("Vertical", 2, 2, 9, 2))
sketch9.addConstraint(Sketcher.Constraint("Equal", 11, 2))
sketch9.addConstraint(Sketcher.Constraint("Equal", 2, 10))
sketch9.addConstraint(Sketcher.Constraint("DistanceX", 1, 1, 1, 2, Q("1 mm")))
sketch9.addConstraint(Sketcher.Constraint("DistanceY", 0, 2, 0, 1, Q("3 mm")))
sketch9.addConstraint(Sketcher.Constraint("DistanceX", 3, 1, 3, 2, Q("29.7 mm")))
sketch9.addConstraint(Sketcher.Constraint("DistanceX", 5, 1, 5, 2, Q("1.5 mm")))
sketch9.addConstraint(Sketcher.Constraint("DistanceY", 4, 2, 4, 1, Q("7.640308 mm")))
sketch9.addConstraint(Sketcher.Constraint("DistanceY", 8, 2, 8, 1, Q("6.896449 mm")))
sketch9.addConstraint(Sketcher.Constraint("DistanceY", 0, 2, -1, 1, Q("26.262965 mm")))
pad9 = body9.newObject("PartDesign::Pad", "Pad008")
pad9.Profile = sketch9
pad9.Length = 26

doc.recompute()
